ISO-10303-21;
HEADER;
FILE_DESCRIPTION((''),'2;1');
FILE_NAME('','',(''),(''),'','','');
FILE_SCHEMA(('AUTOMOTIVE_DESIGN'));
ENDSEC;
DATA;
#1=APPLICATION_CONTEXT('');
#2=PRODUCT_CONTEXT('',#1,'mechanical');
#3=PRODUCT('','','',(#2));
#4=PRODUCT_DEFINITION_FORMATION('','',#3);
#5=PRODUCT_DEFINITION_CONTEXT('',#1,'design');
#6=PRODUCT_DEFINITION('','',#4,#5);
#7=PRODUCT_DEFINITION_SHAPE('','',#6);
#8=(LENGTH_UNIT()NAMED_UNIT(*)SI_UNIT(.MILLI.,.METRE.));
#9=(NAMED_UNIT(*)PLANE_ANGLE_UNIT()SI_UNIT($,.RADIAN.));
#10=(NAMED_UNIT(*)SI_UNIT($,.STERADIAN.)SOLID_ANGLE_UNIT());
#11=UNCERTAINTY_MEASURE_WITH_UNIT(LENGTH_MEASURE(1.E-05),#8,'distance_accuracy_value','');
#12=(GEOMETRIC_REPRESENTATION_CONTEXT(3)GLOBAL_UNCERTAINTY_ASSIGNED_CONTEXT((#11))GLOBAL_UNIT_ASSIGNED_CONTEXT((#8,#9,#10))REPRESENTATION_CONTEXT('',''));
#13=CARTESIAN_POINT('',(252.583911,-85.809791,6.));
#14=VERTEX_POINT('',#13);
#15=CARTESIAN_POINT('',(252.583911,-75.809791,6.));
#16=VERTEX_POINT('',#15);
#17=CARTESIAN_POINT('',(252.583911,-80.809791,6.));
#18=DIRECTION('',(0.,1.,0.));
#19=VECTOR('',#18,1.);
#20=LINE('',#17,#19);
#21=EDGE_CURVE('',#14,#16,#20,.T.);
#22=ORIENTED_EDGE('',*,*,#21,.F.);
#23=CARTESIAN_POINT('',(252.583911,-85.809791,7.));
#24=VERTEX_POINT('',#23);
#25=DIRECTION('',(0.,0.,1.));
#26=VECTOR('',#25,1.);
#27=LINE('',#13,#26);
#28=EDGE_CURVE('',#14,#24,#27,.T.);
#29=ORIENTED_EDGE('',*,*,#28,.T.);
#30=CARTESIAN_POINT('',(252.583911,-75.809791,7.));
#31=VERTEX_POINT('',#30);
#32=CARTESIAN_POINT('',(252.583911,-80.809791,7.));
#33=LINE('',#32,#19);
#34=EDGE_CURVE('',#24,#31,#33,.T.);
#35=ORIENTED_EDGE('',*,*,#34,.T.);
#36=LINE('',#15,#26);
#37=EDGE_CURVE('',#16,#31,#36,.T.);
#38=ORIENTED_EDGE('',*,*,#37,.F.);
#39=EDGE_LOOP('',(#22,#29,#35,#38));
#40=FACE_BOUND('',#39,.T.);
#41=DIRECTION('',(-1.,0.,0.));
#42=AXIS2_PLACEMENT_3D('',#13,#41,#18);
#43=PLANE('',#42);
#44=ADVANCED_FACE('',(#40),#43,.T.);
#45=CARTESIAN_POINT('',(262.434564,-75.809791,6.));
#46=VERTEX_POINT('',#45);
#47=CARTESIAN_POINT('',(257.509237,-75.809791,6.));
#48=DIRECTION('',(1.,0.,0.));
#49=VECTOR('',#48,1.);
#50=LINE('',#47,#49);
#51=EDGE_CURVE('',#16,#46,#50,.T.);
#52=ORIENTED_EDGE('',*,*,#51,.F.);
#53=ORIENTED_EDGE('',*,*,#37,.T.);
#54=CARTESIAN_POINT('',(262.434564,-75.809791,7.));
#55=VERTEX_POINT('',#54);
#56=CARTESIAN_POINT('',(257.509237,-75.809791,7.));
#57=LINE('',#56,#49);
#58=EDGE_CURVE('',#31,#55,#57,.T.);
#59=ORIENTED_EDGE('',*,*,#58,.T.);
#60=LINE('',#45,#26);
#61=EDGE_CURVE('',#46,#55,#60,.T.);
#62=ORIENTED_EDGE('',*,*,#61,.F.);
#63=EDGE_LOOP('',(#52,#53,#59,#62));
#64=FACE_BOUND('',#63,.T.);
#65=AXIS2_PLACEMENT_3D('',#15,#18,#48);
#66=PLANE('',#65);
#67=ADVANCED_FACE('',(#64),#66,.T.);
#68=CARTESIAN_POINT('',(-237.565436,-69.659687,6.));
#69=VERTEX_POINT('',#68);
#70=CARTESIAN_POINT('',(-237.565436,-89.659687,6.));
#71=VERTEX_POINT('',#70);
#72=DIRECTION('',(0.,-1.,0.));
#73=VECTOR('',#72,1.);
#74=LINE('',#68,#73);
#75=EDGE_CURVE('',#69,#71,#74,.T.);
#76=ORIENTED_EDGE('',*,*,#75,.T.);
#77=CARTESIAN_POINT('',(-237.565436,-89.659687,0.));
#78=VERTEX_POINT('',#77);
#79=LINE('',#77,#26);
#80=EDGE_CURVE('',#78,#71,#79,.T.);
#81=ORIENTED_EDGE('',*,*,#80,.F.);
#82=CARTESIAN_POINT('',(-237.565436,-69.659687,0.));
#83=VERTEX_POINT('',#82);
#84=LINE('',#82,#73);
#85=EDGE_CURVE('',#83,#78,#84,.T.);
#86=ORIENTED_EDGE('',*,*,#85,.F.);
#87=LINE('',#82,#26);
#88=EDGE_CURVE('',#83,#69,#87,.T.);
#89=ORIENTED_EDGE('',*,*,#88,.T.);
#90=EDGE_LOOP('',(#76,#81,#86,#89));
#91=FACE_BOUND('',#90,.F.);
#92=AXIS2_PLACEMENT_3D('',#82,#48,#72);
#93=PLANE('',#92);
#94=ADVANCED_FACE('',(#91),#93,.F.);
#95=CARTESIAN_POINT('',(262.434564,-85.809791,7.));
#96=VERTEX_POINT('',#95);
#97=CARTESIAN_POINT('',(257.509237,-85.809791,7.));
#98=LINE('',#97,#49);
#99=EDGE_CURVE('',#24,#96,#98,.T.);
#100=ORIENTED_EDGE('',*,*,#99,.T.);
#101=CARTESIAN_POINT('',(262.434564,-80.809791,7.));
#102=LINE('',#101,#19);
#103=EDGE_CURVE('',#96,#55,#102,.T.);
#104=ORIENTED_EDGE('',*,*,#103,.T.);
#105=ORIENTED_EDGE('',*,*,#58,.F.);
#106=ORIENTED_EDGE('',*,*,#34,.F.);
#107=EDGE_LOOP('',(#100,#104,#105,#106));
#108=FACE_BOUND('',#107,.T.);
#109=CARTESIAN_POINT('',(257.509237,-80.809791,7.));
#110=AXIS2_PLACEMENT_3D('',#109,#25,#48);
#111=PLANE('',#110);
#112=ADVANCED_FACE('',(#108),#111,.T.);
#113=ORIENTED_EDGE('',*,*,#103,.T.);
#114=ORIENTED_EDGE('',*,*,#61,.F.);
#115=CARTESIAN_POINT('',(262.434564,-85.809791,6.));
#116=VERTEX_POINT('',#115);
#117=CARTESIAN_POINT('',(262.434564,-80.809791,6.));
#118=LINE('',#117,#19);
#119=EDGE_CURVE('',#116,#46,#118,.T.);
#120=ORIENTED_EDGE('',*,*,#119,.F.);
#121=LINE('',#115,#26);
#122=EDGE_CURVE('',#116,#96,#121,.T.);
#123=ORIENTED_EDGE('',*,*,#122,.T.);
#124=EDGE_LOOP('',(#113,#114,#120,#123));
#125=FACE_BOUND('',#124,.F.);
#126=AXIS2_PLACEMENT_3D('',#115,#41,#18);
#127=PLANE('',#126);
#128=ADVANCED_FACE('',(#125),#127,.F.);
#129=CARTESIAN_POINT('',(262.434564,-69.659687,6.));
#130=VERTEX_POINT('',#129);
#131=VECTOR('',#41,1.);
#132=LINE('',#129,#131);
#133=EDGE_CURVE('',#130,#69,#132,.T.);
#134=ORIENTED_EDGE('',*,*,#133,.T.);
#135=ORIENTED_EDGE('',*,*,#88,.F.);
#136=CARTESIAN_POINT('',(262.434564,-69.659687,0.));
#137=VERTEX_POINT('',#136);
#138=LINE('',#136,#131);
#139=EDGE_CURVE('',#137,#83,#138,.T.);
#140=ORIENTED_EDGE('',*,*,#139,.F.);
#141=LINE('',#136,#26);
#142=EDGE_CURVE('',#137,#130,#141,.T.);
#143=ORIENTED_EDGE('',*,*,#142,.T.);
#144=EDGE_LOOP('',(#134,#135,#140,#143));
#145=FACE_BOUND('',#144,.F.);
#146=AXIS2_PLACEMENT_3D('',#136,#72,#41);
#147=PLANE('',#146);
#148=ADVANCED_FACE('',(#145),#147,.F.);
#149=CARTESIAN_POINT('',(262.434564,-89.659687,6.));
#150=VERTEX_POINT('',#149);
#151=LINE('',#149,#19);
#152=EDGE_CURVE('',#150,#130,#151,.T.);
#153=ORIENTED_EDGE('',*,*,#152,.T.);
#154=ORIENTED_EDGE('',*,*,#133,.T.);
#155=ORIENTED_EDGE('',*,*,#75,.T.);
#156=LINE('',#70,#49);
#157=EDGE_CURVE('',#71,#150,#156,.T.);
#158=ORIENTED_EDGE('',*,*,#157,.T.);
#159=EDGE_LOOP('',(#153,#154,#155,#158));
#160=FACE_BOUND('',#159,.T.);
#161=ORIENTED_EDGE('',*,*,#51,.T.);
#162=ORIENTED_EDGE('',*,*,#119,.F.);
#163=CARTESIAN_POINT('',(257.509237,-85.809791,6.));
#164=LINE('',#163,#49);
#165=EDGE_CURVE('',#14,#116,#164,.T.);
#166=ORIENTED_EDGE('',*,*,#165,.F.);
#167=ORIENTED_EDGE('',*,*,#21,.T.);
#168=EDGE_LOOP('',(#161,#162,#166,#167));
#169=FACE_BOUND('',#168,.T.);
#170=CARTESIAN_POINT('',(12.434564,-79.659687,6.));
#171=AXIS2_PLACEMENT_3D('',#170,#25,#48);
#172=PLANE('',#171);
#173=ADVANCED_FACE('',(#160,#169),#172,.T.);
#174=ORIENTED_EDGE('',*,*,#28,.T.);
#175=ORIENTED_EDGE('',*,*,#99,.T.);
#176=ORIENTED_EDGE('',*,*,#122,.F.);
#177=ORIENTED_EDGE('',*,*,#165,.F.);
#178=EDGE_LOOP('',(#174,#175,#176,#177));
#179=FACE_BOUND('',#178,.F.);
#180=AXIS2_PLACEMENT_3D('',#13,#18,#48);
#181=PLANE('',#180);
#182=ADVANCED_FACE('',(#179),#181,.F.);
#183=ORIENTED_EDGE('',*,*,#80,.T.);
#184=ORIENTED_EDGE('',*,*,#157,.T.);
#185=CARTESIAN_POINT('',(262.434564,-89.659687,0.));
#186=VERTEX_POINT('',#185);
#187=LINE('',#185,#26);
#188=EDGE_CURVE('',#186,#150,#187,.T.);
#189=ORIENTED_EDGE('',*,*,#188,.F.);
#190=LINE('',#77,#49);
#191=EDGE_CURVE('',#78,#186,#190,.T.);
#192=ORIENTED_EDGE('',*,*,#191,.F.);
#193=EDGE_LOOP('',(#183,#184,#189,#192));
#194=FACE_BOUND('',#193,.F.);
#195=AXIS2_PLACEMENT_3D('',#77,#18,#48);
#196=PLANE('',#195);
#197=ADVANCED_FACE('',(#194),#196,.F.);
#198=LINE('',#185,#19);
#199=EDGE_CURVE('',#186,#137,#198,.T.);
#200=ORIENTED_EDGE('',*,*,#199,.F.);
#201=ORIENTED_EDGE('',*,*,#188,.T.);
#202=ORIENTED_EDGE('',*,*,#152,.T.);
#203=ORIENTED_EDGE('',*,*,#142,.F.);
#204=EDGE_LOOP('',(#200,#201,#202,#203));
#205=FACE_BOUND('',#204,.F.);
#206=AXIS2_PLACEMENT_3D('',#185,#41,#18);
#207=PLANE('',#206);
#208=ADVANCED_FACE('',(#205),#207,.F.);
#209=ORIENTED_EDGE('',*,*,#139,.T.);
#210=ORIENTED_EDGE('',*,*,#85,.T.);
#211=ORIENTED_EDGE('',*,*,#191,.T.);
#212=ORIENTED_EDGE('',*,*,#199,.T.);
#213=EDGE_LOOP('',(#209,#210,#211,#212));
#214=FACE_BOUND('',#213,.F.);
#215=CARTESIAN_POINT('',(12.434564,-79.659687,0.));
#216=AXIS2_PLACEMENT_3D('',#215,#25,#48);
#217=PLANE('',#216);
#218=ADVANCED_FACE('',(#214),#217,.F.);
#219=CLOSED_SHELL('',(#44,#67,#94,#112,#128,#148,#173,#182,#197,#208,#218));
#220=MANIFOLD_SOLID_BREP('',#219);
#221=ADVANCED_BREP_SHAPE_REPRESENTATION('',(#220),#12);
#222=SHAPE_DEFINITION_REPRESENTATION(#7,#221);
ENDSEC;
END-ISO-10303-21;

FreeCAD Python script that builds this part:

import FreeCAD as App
import Part
import Sketcher
from FreeCAD import Vector
Q = App.Units.Quantity


def add_polygon(sketch, points):
    """Adds a closed chain of lines whose ends are joined by coincident constraints."""
    first, n = sketch.GeometryCount, len(points)
    for a, b in zip(points, points[1:] + points[:1]):
        sketch.addGeometry(Part.LineSegment(App.Vector(*a, 0), App.Vector(*b, 0)), False)
    for i in range(n):
        sketch.addConstraint(Sketcher.Constraint("Coincident", first + i, 2, first + (i + 1) % n, 1))

doc = App.newDocument("Part")
body = doc.addObject("PartDesign::Body", "Body")

sketch1 = doc.addObject("Sketcher::SketchObject", "Sketch")
body.addObject(sketch1)
sketch1.AttachmentSupport = (doc.XY_Plane, [""])
sketch1.MapMode = "FlatFace"
add_polygon(sketch1, [(262, -70), (-238, -70), (-238, -90), (262, -90)])
sketch1.addConstraint(Sketcher.Constraint("Horizontal", 0))
sketch1.addConstraint(Sketcher.Constraint("Vertical", 1))
sketch1.addConstraint(Sketcher.Constraint("Horizontal", 2))
sketch1.addConstraint(Sketcher.Constraint("Vertical", 3))
sketch1.addConstraint(Sketcher.Constraint("DistanceX", 0, 2, 0, 1, Q("500 mm")))
sketch1.addConstraint(Sketcher.Constraint("DistanceY", 1, 2, 1, 1, Q("20 mm")))
sketch1.addConstraint(Sketcher.Constraint("DistanceX", 0, 2, -1, 1, Q("237.565436 mm")))
sketch1.addConstraint(Sketcher.Constraint("DistanceY", 0, 2, -1, 1, Q("69.659687 mm")))
pad1 = doc.addObject("PartDesign::Pad", "Pad")
body.addObject(pad1)
pad1.Profile = sketch1
pad1.Length = 6

sketch2 = doc.addObject("Sketcher::SketchObject", "Sketch001")
body.addObject(sketch2)
sketch2.AttachmentSupport = (doc.XY_Plane, [""])
sketch2.MapMode = "FlatFace"
sketch2.AttachmentOffset = App.Placement(Vector(0, 0, 6), App.Rotation())
add_polygon(sketch2, [(253, -76), (253, -86), (262, -86), (262, -76)])
sketch2.addConstraint(Sketcher.Constraint("Vertical", 0))
sketch2.addConstraint(Sketcher.Constraint("Horizontal", 1))
sketch2.addConstraint(Sketcher.Constraint("Vertical", 2))
sketch2.addConstraint(Sketcher.Constraint("Horizontal", 3))
sketch2.addConstraint(Sketcher.Constraint("DistanceY", 0, 2, 0, 1, Q("10 mm")))
sketch2.addConstraint(Sketcher.Constraint("DistanceX", 1, 1, 1, 2, Q("9.850653 mm")))
sketch2.addConstraint(Sketcher.Constraint("DistanceX", -1, 1, 0, 2, Q("252.583911 mm")))
sketch2.addConstraint(Sketcher.Constraint("DistanceY", 0, 2, -1, 1, Q("85.809791 mm")))
pad2 = doc.addObject("PartDesign::Pad", "Pad001")
body.addObject(pad2)
pad2.Profile = sketch2
pad2.Length = 1

doc.recompute()
